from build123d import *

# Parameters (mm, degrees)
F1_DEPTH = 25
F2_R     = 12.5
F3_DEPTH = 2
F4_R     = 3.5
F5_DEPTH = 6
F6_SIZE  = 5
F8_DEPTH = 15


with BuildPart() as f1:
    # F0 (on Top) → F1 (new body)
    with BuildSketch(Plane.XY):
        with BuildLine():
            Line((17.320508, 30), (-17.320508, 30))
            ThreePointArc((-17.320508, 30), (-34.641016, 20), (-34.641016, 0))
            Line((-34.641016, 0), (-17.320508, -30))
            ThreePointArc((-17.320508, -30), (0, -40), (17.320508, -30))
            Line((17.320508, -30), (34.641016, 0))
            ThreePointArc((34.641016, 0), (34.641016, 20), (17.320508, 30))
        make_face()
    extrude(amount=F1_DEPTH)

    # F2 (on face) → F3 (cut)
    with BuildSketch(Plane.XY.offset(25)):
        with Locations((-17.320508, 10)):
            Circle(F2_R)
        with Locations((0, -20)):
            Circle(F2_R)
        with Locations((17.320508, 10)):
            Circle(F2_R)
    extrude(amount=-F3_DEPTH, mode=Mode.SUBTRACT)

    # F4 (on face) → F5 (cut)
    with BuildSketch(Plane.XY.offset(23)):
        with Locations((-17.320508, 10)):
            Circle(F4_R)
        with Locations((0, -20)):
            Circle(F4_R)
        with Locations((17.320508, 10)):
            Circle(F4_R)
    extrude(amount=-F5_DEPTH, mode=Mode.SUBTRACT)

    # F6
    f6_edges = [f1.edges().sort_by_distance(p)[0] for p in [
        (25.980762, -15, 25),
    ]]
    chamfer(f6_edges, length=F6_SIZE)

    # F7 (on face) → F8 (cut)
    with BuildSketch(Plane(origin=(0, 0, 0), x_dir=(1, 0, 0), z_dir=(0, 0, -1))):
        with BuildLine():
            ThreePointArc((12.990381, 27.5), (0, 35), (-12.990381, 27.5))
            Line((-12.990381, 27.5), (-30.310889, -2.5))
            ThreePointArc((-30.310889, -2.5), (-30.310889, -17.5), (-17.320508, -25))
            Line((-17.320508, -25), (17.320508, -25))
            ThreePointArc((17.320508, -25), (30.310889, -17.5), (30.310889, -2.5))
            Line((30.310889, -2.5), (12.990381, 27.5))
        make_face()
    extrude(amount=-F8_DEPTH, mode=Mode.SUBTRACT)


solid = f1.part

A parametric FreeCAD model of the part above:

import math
import FreeCAD as App
import Part
import Sketcher
Q = App.Units.Quantity


def edges_at(feature, points):
    """Names of the edges that pass closest to the given points."""
    edges = feature.Shape.Edges
    near = lambda p: min(range(len(edges)), key=lambda i: edges[i].distToShape(Part.Vertex(*p))[0])
    return sorted({f"Edge{near(p) + 1}" for p in points})

doc = App.newDocument("Part")
params = doc.addObject("Spreadsheet::Sheet", "Params")
for row, (alias, value) in enumerate([
    ("sketch1_radius", "20 mm"),
    ("pad1_length", "25 mm"),
    ("sketch2_diameter", "25 mm"),
    ("pocket1_length", "2 mm"),
    ("sketch3_diameter", "7 mm"),
    ("pocket2_length", "6 mm"),
    ("chamfer_size", "5 mm"),
    ("sketch4_radius", "15 mm"),
    ("pocket3_length", "15 mm"),
], start=1):
    params.set(f"A{row}", alias)
    params.set(f"B{row}", "=" + value)
    params.setAlias(f"B{row}", alias)

body = doc.addObject("PartDesign::Body", "Body")

sketch1 = body.newObject("Sketcher::SketchObject", "Sketch")
sketch1.AttachmentSupport = (doc.getObject("XY_Plane"), [""])
sketch1.MapMode = "FlatFace"
sketch1.addGeometry([
    Part.LineSegment(App.Vector(17, 30, 0), App.Vector(-17, 30, 0)),
    Part.ArcOfCircle(Part.Circle(App.Vector(-17, 10, 0), App.Vector(0, 0, 1), 20), math.radians(90), math.radians(210)),
    Part.LineSegment(App.Vector(-35, 0, 0), App.Vector(-17, -30, 0)),
    Part.ArcOfCircle(Part.Circle(App.Vector(0, -20, 0), App.Vector(0, 0, 1), 20), math.radians(-150), math.radians(-30)),
    Part.LineSegment(App.Vector(17, -30, 0), App.Vector(35, 0, 0)),
    Part.ArcOfCircle(Part.Circle(App.Vector(17, 10, 0), App.Vector(0, 0, 1), 20), math.radians(-30), math.radians(90)),
], False)
sketch1.addConstraint([
    Sketcher.Constraint("Tangent", 0, 2, 1, 1),
    Sketcher.Constraint("Tangent", 1, 2, 2, 1),
    Sketcher.Constraint("Tangent", 2, 2, 3, 1),
    Sketcher.Constraint("Tangent", 3, 2, 4, 1),
    Sketcher.Constraint("Tangent", 4, 2, 5, 1),
    Sketcher.Constraint("Tangent", 5, 2, 0, 1),
    Sketcher.Constraint("Horizontal", 0),
    Sketcher.Constraint("Equal", 1, 3),
    Sketcher.Constraint("Equal", 3, 5),
    Sketcher.Constraint("Symmetric", 0, 2, 3, 2, -1, 1),
    Sketcher.Constraint("Symmetric", 1, 2, 4, 2, -1, 1),
    Sketcher.Constraint("PointOnObject", 3, 3, -2),
    Sketcher.Constraint("Radius", 1, 20.0),
])
sketch1.setExpression("Constraints[12]", "Params.sketch1_radius")
pad1 = body.newObject("PartDesign::Pad", "Pad")
pad1.Profile = sketch1
pad1.setExpression("Length", "Params.pad1_length")

sketch2 = body.newObject("Sketcher::SketchObject", "Sketch001")
sketch2.AttachmentSupport = (doc.getObject("XY_Plane"), [""])
sketch2.MapMode = "FlatFace"
sketch2.AttachmentOffset = App.Placement(App.Vector(0, 0, 25), App.Rotation())
sketch2.addGeometry([
    Part.Circle(App.Vector(-17, 10, 0), App.Vector(0, 0, 1), 12),
    Part.Circle(App.Vector(0, -20, 0), App.Vector(0, 0, 1), 12),
    Part.Circle(App.Vector(17, 10, 0), App.Vector(0, 0, 1), 12),
], False)
sketch2.addConstraint([
    Sketcher.Constraint("Equal", 0, 1),
    Sketcher.Constraint("Equal", 1, 2),
    Sketcher.Constraint("Symmetric", 0, 3, 2, 3, -2),
    Sketcher.Constraint("PointOnObject", 1, 3, -2),
    Sketcher.Constraint("Diameter", 0, 25.0),
    Sketcher.Constraint("DistanceY", -1, 1, 0, 3, 10.0),
    Sketcher.Constraint("DistanceY", 1, 3, -1, 1, 20.0),
    Sketcher.Constraint("DistanceX", 0, 3, -1, 1, 17.320508),
])
sketch2.setExpression("Constraints[4]", "Params.sketch2_diameter")
pocket1 = body.newObject("PartDesign::Pocket", "Pocket")
pocket1.Profile = sketch2
pocket1.setExpression("Length", "Params.pocket1_length")

sketch3 = body.newObject("Sketcher::SketchObject", "Sketch002")
sketch3.AttachmentSupport = (doc.getObject("XY_Plane"), [""])
sketch3.MapMode = "FlatFace"
sketch3.AttachmentOffset = App.Placement(App.Vector(0, 0, 23), App.Rotation())
sketch3.addGeometry([
    Part.Circle(App.Vector(-17.3, 10, 0), App.Vector(0, 0, 1), 3.5),
    Part.Circle(App.Vector(0, -20, 0), App.Vector(0, 0, 1), 3.5),
    Part.Circle(App.Vector(17.3, 10, 0), App.Vector(0, 0, 1), 3.5),
], False)
sketch3.addConstraint([
    Sketcher.Constraint("Equal", 0, 1),
    Sketcher.Constraint("Equal", 1, 2),
    Sketcher.Constraint("Symmetric", 0, 3, 2, 3, -2),
    Sketcher.Constraint("PointOnObject", 1, 3, -2),
    Sketcher.Constraint("Diameter", 0, 7.0),
    Sketcher.Constraint("DistanceY", -1, 1, 0, 3, 10.0),
    Sketcher.Constraint("DistanceY", 1, 3, -1, 1, 20.0),
    Sketcher.Constraint("DistanceX", 0, 3, -1, 1, 17.320508),
])
sketch3.setExpression("Constraints[4]", "Params.sketch3_diameter")
pocket2 = body.newObject("PartDesign::Pocket", "Pocket001")
pocket2.Profile = sketch3
pocket2.setExpression("Length", "Params.pocket2_length")
doc.recompute()

chamfer = body.newObject("PartDesign::Chamfer", "Chamfer")
chamfer.Base = (pocket2, edges_at(pocket2, [(25.981, -15, 25)]))
chamfer.setExpression("Size", "Params.chamfer_size")

sketch4 = body.newObject("Sketcher::SketchObject", "Sketch003")
sketch4.AttachmentSupport = (doc.getObject("XY_Plane"), [""])
sketch4.MapMode = "FlatFace"
sketch4.addGeometry([
    Part.ArcOfCircle(Part.Circle(App.Vector(0, -20, 0), App.Vector(0, 0, 1), 15), math.radians(-150), math.radians(-30)),
    Part.LineSegment(App.Vector(-13, -28, 0), App.Vector(-30, 2, 0)),
    Part.ArcOfCircle(Part.Circle(App.Vector(-17, 10, 0), App.Vector(0, 0, 1), 15), math.radians(90), math.radians(210)),
    Part.LineSegment(App.Vector(-17, 25, 0), App.Vector(17, 25, 0)),
    Part.ArcOfCircle(Part.Circle(App.Vector(17, 10, 0), App.Vector(0, 0, 1), 15), math.radians(-30), math.radians(90)),
    Part.LineSegment(App.Vector(30, 2, 0), App.Vector(13, -28, 0)),
], False)
sketch4.addConstraint([
    Sketcher.Constraint("Tangent", 0, 1, 1, 1),
    Sketcher.Constraint("Tangent", 1, 2, 2, 2),
    Sketcher.Constraint("Tangent", 2, 1, 3, 1),
    Sketcher.Constraint("Tangent", 3, 2, 4, 2),
    Sketcher.Constraint("Tangent", 4, 1, 5, 1),
    Sketcher.Constraint("Tangent", 5, 2, 0, 2),
    Sketcher.Constraint("Horizontal", 3),
    Sketcher.Constraint("Equal", 0, 2),
    Sketcher.Constraint("Equal", 2, 4),
    Sketcher.Constraint("Symmetric", 1, 2, 4, 1, -2),
    Sketcher.Constraint("Radius", 0, 15.0),
    Sketcher.Constraint("Angle", 1, Q("120 deg")),
    Sketcher.Constraint("DistanceY", 0, 3, -1, 1, 20.0),
    Sketcher.Constraint("DistanceY", -1, 1, 2, 3, 10.0),
])
sketch4.setExpression("Constraints[10]", "Params.sketch4_radius")
pocket3 = body.newObject("PartDesign::Pocket", "Pocket002")
pocket3.Profile = sketch4
pocket3.setExpression("Length", "Params.pocket3_length")
pocket3.Reversed = True

doc.recompute()
